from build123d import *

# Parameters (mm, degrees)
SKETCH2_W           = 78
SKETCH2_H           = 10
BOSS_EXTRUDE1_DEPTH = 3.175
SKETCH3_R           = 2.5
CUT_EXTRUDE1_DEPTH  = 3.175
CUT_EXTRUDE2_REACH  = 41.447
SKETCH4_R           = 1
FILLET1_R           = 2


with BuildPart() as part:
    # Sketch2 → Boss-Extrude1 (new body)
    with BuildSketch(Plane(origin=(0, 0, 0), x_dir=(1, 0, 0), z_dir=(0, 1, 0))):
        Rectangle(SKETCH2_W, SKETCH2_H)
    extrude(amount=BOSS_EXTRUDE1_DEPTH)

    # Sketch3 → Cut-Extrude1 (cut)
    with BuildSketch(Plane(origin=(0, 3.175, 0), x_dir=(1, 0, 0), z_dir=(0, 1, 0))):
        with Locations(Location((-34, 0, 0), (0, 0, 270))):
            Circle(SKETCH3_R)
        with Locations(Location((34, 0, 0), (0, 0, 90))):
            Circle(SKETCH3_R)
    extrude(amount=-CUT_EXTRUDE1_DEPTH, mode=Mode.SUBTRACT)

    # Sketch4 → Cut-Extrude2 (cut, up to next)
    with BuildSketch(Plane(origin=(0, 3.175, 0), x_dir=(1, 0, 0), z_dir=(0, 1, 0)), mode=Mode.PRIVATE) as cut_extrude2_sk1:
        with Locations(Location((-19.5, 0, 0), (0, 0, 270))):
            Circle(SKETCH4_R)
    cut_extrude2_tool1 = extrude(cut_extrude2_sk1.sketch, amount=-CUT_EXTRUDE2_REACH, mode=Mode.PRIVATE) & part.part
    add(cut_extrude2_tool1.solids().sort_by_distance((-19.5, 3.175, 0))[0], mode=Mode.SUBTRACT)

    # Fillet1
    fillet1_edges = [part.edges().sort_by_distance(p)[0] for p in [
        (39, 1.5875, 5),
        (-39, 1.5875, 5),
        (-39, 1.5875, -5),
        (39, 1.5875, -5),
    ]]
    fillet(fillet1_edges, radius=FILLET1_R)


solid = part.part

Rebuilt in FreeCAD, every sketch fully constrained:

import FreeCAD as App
import Part
import Sketcher
from FreeCAD import Vector


def edges_at(feature, points):
    """Names of the edges that pass closest to the given points."""
    edges = feature.Shape.Edges
    near = lambda p: min(range(len(edges)), key=lambda i: edges[i].distToShape(Part.Vertex(*p))[0])
    return sorted({f"Edge{near(p) + 1}" for p in points})

doc = App.newDocument("Part")
body = doc.addObject("PartDesign::Body", "Body")

sketch1 = body.newObject("Sketcher::SketchObject", "Sketch")
sketch1.AttachmentSupport = (doc.getObject("XZ_Plane"), [""])
sketch1.MapMode = "FlatFace"
sketch1.addGeometry([
    Part.LineSegment(Vector(-39, -5, 0), Vector(-39, 5, 0)),
    Part.LineSegment(Vector(-39, 5, 0), Vector(39, 5, 0)),
    Part.LineSegment(Vector(39, 5, 0), Vector(39, -5, 0)),
    Part.LineSegment(Vector(39, -5, 0), Vector(-39, -5, 0)),
], False)
sketch1.addConstraint([
    Sketcher.Constraint("Coincident", 0, 2, 1, 1),
    Sketcher.Constraint("Coincident", 1, 2, 2, 1),
    Sketcher.Constraint("Coincident", 2, 2, 3, 1),
    Sketcher.Constraint("Coincident", 3, 2, 0, 1),
    Sketcher.Constraint("Vertical", 0),
    Sketcher.Constraint("Horizontal", 1),
    Sketcher.Constraint("Vertical", 2),
    Sketcher.Constraint("Horizontal", 3),
    Sketcher.Constraint("Symmetric", 0, 2, 2, 2, -1, 1),
    Sketcher.Constraint("DistanceX", 1, 1, 1, 2, 78.0),
    Sketcher.Constraint("DistanceY", 0, 1, 0, 2, 10.0),
])
pad1 = body.newObject("PartDesign::Pad", "Pad")
pad1.Profile = sketch1
pad1.Length = 3.175
pad1.Reversed = True

sketch2 = body.newObject("Sketcher::SketchObject", "Sketch001")
sketch2.AttachmentSupport = (doc.getObject("XZ_Plane"), [""])
sketch2.MapMode = "FlatFace"
sketch2.AttachmentOffset = App.Placement(Vector(0, 0, -3.175), App.Rotation())
sketch2.addGeometry([
    Part.Circle(Vector(-34, 0, 0), Vector(0, 0, 1), 2.5),
    Part.Circle(Vector(34, 0, 0), Vector(0, 0, 1), 2.5),
], False)
sketch2.addConstraint([
    Sketcher.Constraint("Equal", 0, 1),
    Sketcher.Constraint("Symmetric", 0, 3, 1, 3, -1, 1),
    Sketcher.Constraint("PointOnObject", 0, 3, -1),
    Sketcher.Constraint("Diameter", 0, 5.0),
    Sketcher.Constraint("DistanceX", 0, 3, -1, 1, 34.0),
])
pocket1 = body.newObject("PartDesign::Pocket", "Pocket")
pocket1.Profile = sketch2
pocket1.Length = 3.175
pocket1.Reversed = True

sketch3 = body.newObject("Sketcher::SketchObject", "Sketch002")
sketch3.AttachmentSupport = (doc.getObject("XZ_Plane"), [""])
sketch3.MapMode = "FlatFace"
sketch3.AttachmentOffset = App.Placement(Vector(0, 0, -3.175), App.Rotation())
sketch3.addGeometry(Part.Circle(Vector(-19.5, 0, 0), Vector(0, 0, 1), 1), False)
sketch3.addConstraint([
    Sketcher.Constraint("PointOnObject", 0, 3, -1),
    Sketcher.Constraint("Diameter", 0, 2.0),
    Sketcher.Constraint("DistanceX", 0, 3, -1, 1, 19.5),
])
pocket2 = body.newObject("PartDesign::Pocket", "Pocket001")
pocket2.Profile = sketch3
pocket2.Type = "UpToFirst"
pocket2.Reversed = True
doc.recompute()

fillet = body.newObject("PartDesign::Fillet", "Fillet")
fillet.Base = (pocket2, edges_at(pocket2, [
    (39, 1.587, 5),
    (-39, 1.587, 5),
    (-39, 1.587, -5),
    (39, 1.587, -5),
]))
fillet.Radius = 2

doc.recompute()
